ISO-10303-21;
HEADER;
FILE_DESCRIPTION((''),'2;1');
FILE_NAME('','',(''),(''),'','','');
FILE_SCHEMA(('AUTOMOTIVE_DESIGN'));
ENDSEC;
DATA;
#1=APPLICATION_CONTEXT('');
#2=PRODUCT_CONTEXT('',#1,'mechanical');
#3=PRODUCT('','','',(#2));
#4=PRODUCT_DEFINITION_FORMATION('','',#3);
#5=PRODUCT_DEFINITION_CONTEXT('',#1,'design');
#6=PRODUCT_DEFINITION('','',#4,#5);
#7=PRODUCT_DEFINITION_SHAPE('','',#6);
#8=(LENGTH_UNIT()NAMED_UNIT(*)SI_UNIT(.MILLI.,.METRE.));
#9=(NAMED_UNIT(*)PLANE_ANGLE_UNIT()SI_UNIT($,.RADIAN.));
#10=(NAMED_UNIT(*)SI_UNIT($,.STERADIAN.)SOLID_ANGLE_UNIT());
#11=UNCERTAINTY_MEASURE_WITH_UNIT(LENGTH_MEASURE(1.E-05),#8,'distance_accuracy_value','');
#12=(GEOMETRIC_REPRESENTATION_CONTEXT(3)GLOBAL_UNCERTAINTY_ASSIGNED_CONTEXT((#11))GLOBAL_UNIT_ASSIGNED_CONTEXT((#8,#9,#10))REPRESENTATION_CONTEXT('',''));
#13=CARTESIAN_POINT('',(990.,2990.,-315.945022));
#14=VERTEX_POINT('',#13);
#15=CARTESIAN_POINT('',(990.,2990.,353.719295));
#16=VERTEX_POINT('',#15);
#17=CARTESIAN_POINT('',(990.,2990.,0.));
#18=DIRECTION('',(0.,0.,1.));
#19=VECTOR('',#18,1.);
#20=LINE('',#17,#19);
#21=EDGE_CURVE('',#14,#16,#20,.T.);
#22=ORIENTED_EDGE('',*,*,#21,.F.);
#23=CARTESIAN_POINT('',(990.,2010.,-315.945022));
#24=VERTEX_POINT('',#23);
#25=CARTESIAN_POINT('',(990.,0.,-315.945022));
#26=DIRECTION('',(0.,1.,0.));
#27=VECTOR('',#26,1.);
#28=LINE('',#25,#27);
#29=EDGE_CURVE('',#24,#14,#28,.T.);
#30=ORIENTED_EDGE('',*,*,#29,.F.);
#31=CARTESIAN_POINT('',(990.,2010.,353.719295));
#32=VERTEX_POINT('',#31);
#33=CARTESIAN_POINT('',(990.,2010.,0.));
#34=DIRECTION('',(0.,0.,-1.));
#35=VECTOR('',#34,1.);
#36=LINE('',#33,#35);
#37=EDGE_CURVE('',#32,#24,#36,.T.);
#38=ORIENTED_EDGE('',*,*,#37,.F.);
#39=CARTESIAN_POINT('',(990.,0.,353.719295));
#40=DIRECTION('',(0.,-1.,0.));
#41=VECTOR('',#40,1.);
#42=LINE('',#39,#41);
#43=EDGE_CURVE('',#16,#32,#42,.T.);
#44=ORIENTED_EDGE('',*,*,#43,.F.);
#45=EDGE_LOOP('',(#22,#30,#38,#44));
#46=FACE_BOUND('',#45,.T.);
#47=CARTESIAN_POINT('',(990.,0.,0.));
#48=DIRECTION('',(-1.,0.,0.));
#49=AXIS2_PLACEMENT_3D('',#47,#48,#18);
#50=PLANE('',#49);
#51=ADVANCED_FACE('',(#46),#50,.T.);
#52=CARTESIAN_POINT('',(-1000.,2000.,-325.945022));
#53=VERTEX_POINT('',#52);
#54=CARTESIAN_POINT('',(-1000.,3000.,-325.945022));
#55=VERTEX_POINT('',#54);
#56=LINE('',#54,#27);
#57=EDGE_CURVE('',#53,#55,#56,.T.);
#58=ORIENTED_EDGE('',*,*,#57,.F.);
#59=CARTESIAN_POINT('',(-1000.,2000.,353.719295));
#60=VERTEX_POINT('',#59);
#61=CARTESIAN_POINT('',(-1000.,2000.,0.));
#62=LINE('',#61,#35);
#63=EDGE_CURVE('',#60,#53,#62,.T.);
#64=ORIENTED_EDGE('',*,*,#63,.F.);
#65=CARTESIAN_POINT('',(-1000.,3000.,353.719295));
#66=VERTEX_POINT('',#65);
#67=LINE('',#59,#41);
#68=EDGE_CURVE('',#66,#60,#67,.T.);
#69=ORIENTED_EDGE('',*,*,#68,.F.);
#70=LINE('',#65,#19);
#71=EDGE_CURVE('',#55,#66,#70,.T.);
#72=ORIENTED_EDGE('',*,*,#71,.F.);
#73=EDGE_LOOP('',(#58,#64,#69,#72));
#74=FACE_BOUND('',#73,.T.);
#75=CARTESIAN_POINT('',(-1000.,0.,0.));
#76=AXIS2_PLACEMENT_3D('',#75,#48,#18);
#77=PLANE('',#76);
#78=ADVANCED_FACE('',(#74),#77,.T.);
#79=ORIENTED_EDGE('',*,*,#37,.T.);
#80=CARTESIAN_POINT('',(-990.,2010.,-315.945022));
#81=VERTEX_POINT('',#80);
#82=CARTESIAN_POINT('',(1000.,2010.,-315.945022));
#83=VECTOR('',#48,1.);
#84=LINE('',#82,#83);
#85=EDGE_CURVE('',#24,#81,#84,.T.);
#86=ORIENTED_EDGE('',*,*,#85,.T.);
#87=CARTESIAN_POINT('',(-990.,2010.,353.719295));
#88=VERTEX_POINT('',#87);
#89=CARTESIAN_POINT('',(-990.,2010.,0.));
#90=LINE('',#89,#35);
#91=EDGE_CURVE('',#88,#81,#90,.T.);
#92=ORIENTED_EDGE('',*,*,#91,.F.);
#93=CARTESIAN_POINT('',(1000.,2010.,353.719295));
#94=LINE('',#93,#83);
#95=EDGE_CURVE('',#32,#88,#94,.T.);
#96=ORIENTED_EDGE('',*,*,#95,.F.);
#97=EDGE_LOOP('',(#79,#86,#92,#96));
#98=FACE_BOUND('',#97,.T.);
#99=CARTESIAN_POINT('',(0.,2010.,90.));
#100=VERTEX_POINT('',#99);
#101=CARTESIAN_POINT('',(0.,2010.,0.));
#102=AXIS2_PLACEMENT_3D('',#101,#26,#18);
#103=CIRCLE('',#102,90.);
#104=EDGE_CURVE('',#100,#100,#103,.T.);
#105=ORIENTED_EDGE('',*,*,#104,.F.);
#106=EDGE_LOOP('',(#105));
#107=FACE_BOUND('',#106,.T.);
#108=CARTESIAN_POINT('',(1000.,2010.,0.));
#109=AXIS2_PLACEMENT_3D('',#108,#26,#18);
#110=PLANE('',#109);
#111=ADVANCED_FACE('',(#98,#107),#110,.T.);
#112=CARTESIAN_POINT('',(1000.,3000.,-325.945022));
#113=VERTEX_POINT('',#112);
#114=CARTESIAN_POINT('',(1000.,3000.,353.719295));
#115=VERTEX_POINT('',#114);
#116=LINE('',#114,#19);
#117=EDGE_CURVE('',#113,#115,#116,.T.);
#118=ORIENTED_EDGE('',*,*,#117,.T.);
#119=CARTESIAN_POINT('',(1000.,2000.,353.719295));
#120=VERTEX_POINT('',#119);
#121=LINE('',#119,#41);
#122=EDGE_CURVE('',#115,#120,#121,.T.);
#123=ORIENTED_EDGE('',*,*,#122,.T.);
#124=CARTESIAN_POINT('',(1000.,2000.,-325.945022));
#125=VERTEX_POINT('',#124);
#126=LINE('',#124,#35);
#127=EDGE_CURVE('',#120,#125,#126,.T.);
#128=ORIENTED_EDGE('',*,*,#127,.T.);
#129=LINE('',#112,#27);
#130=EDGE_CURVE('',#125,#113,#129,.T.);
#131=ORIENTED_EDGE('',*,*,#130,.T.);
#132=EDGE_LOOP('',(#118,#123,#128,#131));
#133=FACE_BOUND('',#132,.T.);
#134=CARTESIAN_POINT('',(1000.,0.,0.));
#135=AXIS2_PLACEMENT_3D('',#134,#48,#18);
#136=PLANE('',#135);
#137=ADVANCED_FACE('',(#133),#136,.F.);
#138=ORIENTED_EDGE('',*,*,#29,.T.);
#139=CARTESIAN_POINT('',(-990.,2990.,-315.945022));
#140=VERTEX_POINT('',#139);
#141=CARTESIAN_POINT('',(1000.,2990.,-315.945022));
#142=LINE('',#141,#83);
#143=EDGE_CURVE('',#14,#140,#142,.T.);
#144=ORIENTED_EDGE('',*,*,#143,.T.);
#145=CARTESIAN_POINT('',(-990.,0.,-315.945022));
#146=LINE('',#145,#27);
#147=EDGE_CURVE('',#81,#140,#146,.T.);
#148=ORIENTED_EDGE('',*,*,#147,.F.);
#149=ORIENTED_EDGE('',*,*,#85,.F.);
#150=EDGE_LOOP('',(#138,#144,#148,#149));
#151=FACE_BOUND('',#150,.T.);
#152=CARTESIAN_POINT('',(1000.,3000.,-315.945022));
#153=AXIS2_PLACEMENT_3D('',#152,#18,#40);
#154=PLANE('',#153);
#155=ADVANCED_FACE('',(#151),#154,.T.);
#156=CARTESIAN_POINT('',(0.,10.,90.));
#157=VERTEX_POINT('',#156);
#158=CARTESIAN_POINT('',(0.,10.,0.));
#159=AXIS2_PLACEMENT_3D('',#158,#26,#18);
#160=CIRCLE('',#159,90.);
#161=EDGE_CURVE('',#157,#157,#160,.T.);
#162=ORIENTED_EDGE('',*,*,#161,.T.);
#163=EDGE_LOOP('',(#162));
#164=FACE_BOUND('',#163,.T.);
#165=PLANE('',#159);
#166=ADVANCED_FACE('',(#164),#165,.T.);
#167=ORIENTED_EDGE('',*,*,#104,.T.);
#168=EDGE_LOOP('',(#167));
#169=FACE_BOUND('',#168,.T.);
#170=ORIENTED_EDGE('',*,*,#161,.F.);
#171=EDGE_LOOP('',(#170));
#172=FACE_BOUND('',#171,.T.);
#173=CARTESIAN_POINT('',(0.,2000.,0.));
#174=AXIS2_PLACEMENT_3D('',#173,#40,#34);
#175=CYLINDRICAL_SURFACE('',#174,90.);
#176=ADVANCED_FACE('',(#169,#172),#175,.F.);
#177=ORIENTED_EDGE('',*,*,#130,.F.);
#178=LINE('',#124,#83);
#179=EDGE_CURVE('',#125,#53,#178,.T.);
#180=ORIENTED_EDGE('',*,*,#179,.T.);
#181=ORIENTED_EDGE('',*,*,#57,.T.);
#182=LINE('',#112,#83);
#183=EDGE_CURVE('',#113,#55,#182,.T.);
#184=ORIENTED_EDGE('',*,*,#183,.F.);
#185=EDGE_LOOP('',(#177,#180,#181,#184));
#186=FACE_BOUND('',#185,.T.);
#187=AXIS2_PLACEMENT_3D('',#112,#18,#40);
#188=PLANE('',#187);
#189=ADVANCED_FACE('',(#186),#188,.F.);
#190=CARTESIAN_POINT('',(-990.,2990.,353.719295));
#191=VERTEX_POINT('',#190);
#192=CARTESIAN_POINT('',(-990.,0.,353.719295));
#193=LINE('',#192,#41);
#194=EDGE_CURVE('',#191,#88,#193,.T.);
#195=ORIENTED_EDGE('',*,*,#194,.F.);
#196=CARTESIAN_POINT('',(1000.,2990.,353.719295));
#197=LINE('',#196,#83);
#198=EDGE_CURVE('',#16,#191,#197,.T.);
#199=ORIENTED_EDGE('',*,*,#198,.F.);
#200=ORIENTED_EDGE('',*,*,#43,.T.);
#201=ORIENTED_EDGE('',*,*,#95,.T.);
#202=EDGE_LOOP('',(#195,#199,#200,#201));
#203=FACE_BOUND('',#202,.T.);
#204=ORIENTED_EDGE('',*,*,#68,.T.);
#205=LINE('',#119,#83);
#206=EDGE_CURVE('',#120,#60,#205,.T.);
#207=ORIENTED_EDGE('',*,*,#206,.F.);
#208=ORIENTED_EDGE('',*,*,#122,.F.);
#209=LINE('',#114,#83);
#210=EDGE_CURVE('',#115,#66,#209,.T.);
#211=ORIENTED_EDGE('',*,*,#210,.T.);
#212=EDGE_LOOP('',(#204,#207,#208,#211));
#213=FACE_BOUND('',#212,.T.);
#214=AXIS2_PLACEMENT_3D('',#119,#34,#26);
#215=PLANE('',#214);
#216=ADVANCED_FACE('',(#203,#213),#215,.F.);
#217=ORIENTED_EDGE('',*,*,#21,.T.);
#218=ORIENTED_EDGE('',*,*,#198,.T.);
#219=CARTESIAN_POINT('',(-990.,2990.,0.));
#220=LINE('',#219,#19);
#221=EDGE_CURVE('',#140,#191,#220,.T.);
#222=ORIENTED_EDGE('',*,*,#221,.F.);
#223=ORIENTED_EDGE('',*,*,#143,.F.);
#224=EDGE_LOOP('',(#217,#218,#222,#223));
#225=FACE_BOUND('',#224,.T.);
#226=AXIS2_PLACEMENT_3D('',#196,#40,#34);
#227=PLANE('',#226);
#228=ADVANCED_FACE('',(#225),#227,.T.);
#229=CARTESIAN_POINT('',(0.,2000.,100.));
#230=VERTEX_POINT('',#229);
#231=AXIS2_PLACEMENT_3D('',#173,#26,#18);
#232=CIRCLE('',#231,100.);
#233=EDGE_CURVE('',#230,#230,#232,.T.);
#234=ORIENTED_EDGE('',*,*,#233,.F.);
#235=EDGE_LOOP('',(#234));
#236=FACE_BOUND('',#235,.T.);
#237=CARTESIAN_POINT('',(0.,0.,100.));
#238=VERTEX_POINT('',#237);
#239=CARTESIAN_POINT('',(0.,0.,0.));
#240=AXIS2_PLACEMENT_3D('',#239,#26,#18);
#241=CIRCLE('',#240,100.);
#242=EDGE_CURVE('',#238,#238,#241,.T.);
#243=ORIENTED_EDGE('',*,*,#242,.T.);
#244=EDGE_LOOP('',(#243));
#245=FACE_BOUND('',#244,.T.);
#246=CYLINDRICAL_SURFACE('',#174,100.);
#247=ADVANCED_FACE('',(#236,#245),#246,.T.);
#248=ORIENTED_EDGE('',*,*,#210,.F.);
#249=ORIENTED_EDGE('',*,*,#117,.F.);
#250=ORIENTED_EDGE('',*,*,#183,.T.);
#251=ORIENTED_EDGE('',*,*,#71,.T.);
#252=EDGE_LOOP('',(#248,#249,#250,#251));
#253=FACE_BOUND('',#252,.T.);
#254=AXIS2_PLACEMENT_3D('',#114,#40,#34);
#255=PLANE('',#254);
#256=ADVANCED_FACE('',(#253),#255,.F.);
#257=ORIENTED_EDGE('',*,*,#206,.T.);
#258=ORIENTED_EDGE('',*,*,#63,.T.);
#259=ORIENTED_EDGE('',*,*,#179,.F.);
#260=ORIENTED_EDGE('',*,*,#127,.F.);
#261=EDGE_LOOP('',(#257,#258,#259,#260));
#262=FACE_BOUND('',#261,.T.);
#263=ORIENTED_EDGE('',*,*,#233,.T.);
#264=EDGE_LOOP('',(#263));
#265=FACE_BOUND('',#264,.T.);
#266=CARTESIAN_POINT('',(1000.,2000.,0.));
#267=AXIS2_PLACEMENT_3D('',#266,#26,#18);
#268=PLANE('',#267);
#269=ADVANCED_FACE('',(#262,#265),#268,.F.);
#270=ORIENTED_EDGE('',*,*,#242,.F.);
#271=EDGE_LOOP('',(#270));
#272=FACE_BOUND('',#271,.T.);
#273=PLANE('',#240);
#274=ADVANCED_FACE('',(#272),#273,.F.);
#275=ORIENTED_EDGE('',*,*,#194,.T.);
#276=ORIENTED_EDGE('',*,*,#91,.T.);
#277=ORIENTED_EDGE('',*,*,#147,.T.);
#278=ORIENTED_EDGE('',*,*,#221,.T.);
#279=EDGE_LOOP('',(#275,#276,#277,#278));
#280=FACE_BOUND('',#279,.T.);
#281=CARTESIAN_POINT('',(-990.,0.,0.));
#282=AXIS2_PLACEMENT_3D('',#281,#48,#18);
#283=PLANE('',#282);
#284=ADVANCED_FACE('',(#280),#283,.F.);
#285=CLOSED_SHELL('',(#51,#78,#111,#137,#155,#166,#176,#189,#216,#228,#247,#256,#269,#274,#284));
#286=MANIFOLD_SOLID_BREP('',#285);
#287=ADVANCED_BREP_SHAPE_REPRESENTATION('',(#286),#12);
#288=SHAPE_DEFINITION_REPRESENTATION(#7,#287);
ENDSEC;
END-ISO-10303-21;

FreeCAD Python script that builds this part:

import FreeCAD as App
import Part
import Sketcher
Q = App.Units.Quantity


def faces_at(feature, points):
    """Names of the faces that lie closest to the given points."""
    faces = feature.Shape.Faces
    near = lambda p: min(range(len(faces)), key=lambda i: faces[i].distToShape(Part.Vertex(*p))[0])
    return sorted({f"Face{near(p) + 1}" for p in points})

doc = App.newDocument("Part")
params = doc.addObject("Spreadsheet::Sheet", "Params")
for row, (alias, value) in enumerate([
    ("sketch1_diameter", "200 mm"),
    ("pad1_length", "2000 mm"),
    ("sketch2_width", "1000 mm"),
    ("pad2_length", "2000 mm"),
    ("thickness_wall", "10 mm"),
], start=1):
    params.set(f"A{row}", alias)
    params.set(f"B{row}", "=" + value)
    params.setAlias(f"B{row}", alias)

body = doc.addObject("PartDesign::Body", "Body")

# Sketch on XZ plane
sketch1 = body.newObject("Sketcher::SketchObject", "Sketch")
sketch1.AttachmentSupport = (doc.getObject("XZ_Plane"), [""])
sketch1.MapMode = "FlatFace"
sketch1.addGeometry(Part.Circle(App.Vector(0, 0, 0), App.Vector(0, 0, 1), 100), False)
sketch1.addConstraint(Sketcher.Constraint("Coincident", 0, 3, -1, 1))
sketch1.addConstraint(Sketcher.Constraint("Diameter", 0, Q("200 mm")))
sketch1.setExpression("Constraints[1]", "Params.sketch1_diameter")
pad1 = body.newObject("PartDesign::Pad", "Pad")
pad1.Profile = sketch1
pad1.setExpression("Length", "Params.pad1_length")
pad1.Reversed = True

# Sketch on YZ plane
sketch2 = body.newObject("Sketcher::SketchObject", "Sketch001")
sketch2.AttachmentSupport = (doc.getObject("YZ_Plane"), [""])
sketch2.MapMode = "FlatFace"
sketch2.addGeometry(Part.LineSegment(App.Vector(2000, 354, 0), App.Vector(2000, -326, 0)), False)
sketch2.addGeometry(Part.LineSegment(App.Vector(2000, -326, 0), App.Vector(3000, -326, 0)), False)
sketch2.addGeometry(Part.LineSegment(App.Vector(3000, -326, 0), App.Vector(3000, 354, 0)), False)
sketch2.addGeometry(Part.LineSegment(App.Vector(3000, 354, 0), App.Vector(2000, 354, 0)), False)
sketch2.addConstraint(Sketcher.Constraint("Coincident", 0, 2, 1, 1))
sketch2.addConstraint(Sketcher.Constraint("Coincident", 1, 2, 2, 1))
sketch2.addConstraint(Sketcher.Constraint("Coincident", 2, 2, 3, 1))
sketch2.addConstraint(Sketcher.Constraint("Coincident", 3, 2, 0, 1))
sketch2.addConstraint(Sketcher.Constraint("Vertical", 0))
sketch2.addConstraint(Sketcher.Constraint("Horizontal", 1))
sketch2.addConstraint(Sketcher.Constraint("Vertical", 2))
sketch2.addConstraint(Sketcher.Constraint("Horizontal", 3))
sketch2.addConstraint(Sketcher.Constraint("DistanceX", 1, 1, 1, 2, Q("1000 mm")))
sketch2.addConstraint(Sketcher.Constraint("DistanceX", -1, 1, 0, 2, Q("2000 mm")))
sketch2.addConstraint(Sketcher.Constraint("DistanceY", 0, 2, 0, 1, Q("679.664318 mm")))
sketch2.addConstraint(Sketcher.Constraint("DistanceY", 0, 2, -1, 1, Q("325.945022 mm")))
sketch2.setExpression("Constraints[8]", "Params.sketch2_width")
pad2 = body.newObject("PartDesign::Pad", "Pad001")
pad2.Profile = sketch2
pad2.setExpression("Length", "Params.pad2_length")
pad2.Midplane = True
doc.recompute()

thickness = body.newObject("PartDesign::Thickness", "Thickness")
thickness.Base = (pad2, faces_at(pad2, [(0, 2500, 353.719)]))
thickness.setExpression("Value", "Params.thickness_wall")
thickness.Reversed = True
thickness.Join = "Intersection"

doc.recompute()
